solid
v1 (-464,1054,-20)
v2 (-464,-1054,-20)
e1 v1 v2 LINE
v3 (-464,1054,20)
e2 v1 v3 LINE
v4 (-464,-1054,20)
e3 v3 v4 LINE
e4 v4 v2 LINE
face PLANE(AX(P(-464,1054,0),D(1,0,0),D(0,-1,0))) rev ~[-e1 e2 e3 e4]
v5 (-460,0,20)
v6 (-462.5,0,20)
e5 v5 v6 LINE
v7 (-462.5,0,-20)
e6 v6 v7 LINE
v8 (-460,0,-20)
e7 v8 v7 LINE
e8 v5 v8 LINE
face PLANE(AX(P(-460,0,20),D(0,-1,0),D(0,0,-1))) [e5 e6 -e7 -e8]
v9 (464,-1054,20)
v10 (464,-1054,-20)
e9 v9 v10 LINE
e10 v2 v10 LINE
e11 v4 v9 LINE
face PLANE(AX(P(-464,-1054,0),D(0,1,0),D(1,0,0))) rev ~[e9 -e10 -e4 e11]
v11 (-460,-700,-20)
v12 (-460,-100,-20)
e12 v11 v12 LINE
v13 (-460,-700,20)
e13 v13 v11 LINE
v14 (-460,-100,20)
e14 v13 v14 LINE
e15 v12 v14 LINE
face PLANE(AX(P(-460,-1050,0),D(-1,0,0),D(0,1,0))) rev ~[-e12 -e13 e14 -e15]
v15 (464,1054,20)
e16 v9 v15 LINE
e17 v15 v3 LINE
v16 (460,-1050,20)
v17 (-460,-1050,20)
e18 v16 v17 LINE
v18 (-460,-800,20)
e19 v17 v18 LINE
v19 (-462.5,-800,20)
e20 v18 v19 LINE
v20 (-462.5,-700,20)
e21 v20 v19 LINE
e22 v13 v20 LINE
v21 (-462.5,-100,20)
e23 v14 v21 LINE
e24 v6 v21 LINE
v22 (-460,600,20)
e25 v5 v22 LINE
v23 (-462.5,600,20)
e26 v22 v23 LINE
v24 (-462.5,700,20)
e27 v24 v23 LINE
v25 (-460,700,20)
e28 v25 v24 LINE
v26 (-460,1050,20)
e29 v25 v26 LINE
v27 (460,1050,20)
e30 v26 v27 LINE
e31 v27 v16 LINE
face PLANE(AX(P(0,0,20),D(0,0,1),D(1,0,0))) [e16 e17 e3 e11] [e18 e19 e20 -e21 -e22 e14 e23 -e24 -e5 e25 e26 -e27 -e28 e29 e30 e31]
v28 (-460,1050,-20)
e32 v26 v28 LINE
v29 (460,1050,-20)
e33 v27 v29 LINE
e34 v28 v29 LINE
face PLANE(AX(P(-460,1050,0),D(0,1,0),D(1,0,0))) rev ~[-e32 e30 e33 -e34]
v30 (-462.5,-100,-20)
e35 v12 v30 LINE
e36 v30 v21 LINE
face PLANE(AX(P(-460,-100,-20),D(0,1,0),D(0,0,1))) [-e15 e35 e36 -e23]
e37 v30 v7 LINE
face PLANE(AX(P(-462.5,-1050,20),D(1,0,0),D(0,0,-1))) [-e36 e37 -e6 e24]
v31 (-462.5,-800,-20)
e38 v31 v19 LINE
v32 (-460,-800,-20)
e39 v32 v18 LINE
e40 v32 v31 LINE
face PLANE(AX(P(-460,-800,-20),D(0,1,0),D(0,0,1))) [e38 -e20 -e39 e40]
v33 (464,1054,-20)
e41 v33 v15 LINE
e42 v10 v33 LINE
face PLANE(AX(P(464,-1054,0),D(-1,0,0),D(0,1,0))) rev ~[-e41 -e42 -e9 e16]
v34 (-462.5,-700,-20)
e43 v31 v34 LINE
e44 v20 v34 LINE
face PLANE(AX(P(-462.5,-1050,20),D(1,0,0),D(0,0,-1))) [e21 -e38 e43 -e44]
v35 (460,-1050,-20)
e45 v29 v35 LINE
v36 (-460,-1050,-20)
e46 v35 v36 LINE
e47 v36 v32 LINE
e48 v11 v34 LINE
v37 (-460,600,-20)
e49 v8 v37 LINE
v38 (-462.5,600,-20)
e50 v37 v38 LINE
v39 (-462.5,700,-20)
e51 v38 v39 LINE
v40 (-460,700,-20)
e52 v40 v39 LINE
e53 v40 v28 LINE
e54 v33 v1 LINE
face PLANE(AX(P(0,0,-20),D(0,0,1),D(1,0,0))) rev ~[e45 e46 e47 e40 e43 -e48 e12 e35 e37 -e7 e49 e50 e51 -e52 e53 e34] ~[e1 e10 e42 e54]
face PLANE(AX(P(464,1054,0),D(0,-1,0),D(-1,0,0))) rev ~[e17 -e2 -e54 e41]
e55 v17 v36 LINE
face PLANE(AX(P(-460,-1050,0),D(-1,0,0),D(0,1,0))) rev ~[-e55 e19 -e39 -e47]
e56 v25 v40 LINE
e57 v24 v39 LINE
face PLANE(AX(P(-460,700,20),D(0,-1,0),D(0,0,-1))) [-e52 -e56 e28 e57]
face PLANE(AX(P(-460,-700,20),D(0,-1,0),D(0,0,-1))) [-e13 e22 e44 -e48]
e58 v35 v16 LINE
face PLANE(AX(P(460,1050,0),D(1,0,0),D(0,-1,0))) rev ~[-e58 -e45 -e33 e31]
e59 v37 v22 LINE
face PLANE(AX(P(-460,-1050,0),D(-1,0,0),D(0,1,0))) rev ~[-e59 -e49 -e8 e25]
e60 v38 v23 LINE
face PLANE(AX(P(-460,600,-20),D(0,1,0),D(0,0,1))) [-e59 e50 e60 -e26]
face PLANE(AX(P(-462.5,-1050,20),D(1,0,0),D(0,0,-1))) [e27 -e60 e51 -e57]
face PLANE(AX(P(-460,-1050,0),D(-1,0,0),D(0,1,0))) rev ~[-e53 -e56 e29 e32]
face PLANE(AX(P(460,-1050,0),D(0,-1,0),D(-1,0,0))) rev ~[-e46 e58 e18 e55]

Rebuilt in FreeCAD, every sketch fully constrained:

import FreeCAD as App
import Part
import Sketcher
Q = App.Units.Quantity

doc = App.newDocument("Part")
params = doc.addObject("Spreadsheet::Sheet", "Params")
for row, (alias, value) in enumerate([
    ("sketch1_width", "920 mm"),
    ("sketch1_height", "2100 mm"),
    ("pad1_length", "40 mm"),
    ("sketch2_width", "100 mm"),
    ("sketch2_height", "40 mm"),
    ("pocket1_length", "2.5 mm"),
], start=1):
    params.set(f"A{row}", alias)
    params.set(f"B{row}", "=" + value)
    params.setAlias(f"B{row}", alias)

body = doc.addObject("PartDesign::Body", "Body")

sketch1 = body.newObject("Sketcher::SketchObject", "Sketch")
sketch1.AttachmentSupport = (doc.getObject("XY_Plane"), [""])
sketch1.MapMode = "FlatFace"
sketch1.addGeometry(Part.LineSegment(App.Vector(464, -1054, 0), App.Vector(464, 1054, 0)), False)
sketch1.addGeometry(Part.LineSegment(App.Vector(464, 1054, 0), App.Vector(-464, 1054, 0)), False)
sketch1.addGeometry(Part.LineSegment(App.Vector(-464, 1054, 0), App.Vector(-464, -1054, 0)), False)
sketch1.addGeometry(Part.LineSegment(App.Vector(-464, -1054, 0), App.Vector(464, -1054, 0)), False)
sketch1.addGeometry(Part.LineSegment(App.Vector(460, 1050, 0), App.Vector(460, -1050, 0)), False)
sketch1.addGeometry(Part.LineSegment(App.Vector(460, -1050, 0), App.Vector(-460, -1050, 0)), False)
sketch1.addGeometry(Part.LineSegment(App.Vector(-460, -1050, 0), App.Vector(-460, 1050, 0)), False)
sketch1.addGeometry(Part.LineSegment(App.Vector(-460, 1050, 0), App.Vector(460, 1050, 0)), False)
sketch1.addConstraint(Sketcher.Constraint("Coincident", 0, 2, 1, 1))
sketch1.addConstraint(Sketcher.Constraint("Coincident", 1, 2, 2, 1))
sketch1.addConstraint(Sketcher.Constraint("Coincident", 2, 2, 3, 1))
sketch1.addConstraint(Sketcher.Constraint("Coincident", 3, 2, 0, 1))
sketch1.addConstraint(Sketcher.Constraint("Coincident", 4, 2, 5, 1))
sketch1.addConstraint(Sketcher.Constraint("Coincident", 5, 2, 6, 1))
sketch1.addConstraint(Sketcher.Constraint("Coincident", 6, 2, 7, 1))
sketch1.addConstraint(Sketcher.Constraint("Coincident", 7, 2, 4, 1))
sketch1.addConstraint(Sketcher.Constraint("Vertical", 0))
sketch1.addConstraint(Sketcher.Constraint("Horizontal", 1))
sketch1.addConstraint(Sketcher.Constraint("Vertical", 2))
sketch1.addConstraint(Sketcher.Constraint("Horizontal", 3))
sketch1.addConstraint(Sketcher.Constraint("Vertical", 4))
sketch1.addConstraint(Sketcher.Constraint("Horizontal", 5))
sketch1.addConstraint(Sketcher.Constraint("Vertical", 6))
sketch1.addConstraint(Sketcher.Constraint("Horizontal", 7))
sketch1.addConstraint(Sketcher.Constraint("Symmetric", 0, 2, 2, 2, -1, 1))
sketch1.addConstraint(Sketcher.Constraint("Symmetric", 4, 2, 6, 2, -1, 1))
sketch1.addConstraint(Sketcher.Constraint("DistanceX", 5, 2, 5, 1, Q("920 mm")))
sketch1.addConstraint(Sketcher.Constraint("DistanceY", 4, 2, 4, 1, Q("2100 mm")))
sketch1.addConstraint(Sketcher.Constraint("DistanceX", 4, 2, 3, 2, Q("4 mm")))
sketch1.addConstraint(Sketcher.Constraint("DistanceY", 3, 2, 4, 2, Q("4 mm")))
sketch1.setExpression("Constraints[18]", "Params.sketch1_width")
sketch1.setExpression("Constraints[19]", "Params.sketch1_height")
pad1 = body.newObject("PartDesign::Pad", "Pad")
pad1.Profile = sketch1
pad1.setExpression("Length", "Params.pad1_length")
pad1.Midplane = True

sketch2 = body.newObject("Sketcher::SketchObject", "Sketch001")
sketch2.AttachmentSupport = (doc.getObject("YZ_Plane"), [""])
sketch2.MapMode = "FlatFace"
sketch2.AttachmentOffset = App.Placement(App.Vector(0, 0, -460), App.Rotation())
sketch2.addGeometry(Part.LineSegment(App.Vector(700, -20, 0), App.Vector(700, 20, 0)), False)
sketch2.addGeometry(Part.LineSegment(App.Vector(700, 20, 0), App.Vector(600, 20, 0)), False)
sketch2.addGeometry(Part.LineSegment(App.Vector(600, 20, 0), App.Vector(600, -20, 0)), False)
sketch2.addGeometry(Part.LineSegment(App.Vector(600, -20, 0), App.Vector(700, -20, 0)), False)
sketch2.addGeometry(Part.LineSegment(App.Vector(0, -20, 0), App.Vector(0, 20, 0)), False)
sketch2.addGeometry(Part.LineSegment(App.Vector(0, 20, 0), App.Vector(-100, 20, 0)), False)
sketch2.addGeometry(Part.LineSegment(App.Vector(-100, 20, 0), App.Vector(-100, -20, 0)), False)
sketch2.addGeometry(Part.LineSegment(App.Vector(-100, -20, 0), App.Vector(0, -20, 0)), False)
sketch2.addGeometry(Part.LineSegment(App.Vector(-700, -20, 0), App.Vector(-700, 20, 0)), False)
sketch2.addGeometry(Part.LineSegment(App.Vector(-700, 20, 0), App.Vector(-800, 20, 0)), False)
sketch2.addGeometry(Part.LineSegment(App.Vector(-800, 20, 0), App.Vector(-800, -20, 0)), False)
sketch2.addGeometry(Part.LineSegment(App.Vector(-800, -20, 0), App.Vector(-700, -20, 0)), False)
sketch2.addConstraint(Sketcher.Constraint("Coincident", 0, 2, 1, 1))
sketch2.addConstraint(Sketcher.Constraint("Coincident", 1, 2, 2, 1))
sketch2.addConstraint(Sketcher.Constraint("Coincident", 2, 2, 3, 1))
sketch2.addConstraint(Sketcher.Constraint("Coincident", 3, 2, 0, 1))
sketch2.addConstraint(Sketcher.Constraint("Coincident", 4, 2, 5, 1))
sketch2.addConstraint(Sketcher.Constraint("Coincident", 5, 2, 6, 1))
sketch2.addConstraint(Sketcher.Constraint("Coincident", 6, 2, 7, 1))
sketch2.addConstraint(Sketcher.Constraint("Coincident", 7, 2, 4, 1))
sketch2.addConstraint(Sketcher.Constraint("Coincident", 8, 2, 9, 1))
sketch2.addConstraint(Sketcher.Constraint("Coincident", 9, 2, 10, 1))
sketch2.addConstraint(Sketcher.Constraint("Coincident", 10, 2, 11, 1))
sketch2.addConstraint(Sketcher.Constraint("Coincident", 11, 2, 8, 1))
sketch2.addConstraint(Sketcher.Constraint("Vertical", 0))
sketch2.addConstraint(Sketcher.Constraint("Horizontal", 1))
sketch2.addConstraint(Sketcher.Constraint("Vertical", 2))
sketch2.addConstraint(Sketcher.Constraint("Horizontal", 3))
sketch2.addConstraint(Sketcher.Constraint("Vertical", 4))
sketch2.addConstraint(Sketcher.Constraint("Horizontal", 5))
sketch2.addConstraint(Sketcher.Constraint("Vertical", 6))
sketch2.addConstraint(Sketcher.Constraint("Horizontal", 7))
sketch2.addConstraint(Sketcher.Constraint("Vertical", 8))
sketch2.addConstraint(Sketcher.Constraint("Horizontal", 9))
sketch2.addConstraint(Sketcher.Constraint("Vertical", 10))
sketch2.addConstraint(Sketcher.Constraint("Horizontal", 11))
sketch2.addConstraint(Sketcher.Constraint("Symmetric", 4, 2, 7, 2, -1, 1))
sketch2.addConstraint(Sketcher.Constraint("Symmetric", 3, 2, 8, 2, -1, 1))
sketch2.addConstraint(Sketcher.Constraint("Horizontal", 1, 2, 4, 2))
sketch2.addConstraint(Sketcher.Constraint("Horizontal", 3, 2, 6, 2))
sketch2.addConstraint(Sketcher.Constraint("Horizontal", 7, 2, 10, 2))
sketch2.addConstraint(Sketcher.Constraint("Equal", 3, 5))
sketch2.addConstraint(Sketcher.Constraint("Equal", 7, 9))
sketch2.addConstraint(Sketcher.Constraint("DistanceX", 1, 2, 1, 1, Q("100 mm")))
sketch2.addConstraint(Sketcher.Constraint("DistanceX", -1, 1, 0, 2, Q("700 mm")))
sketch2.addConstraint(Sketcher.Constraint("DistanceY", 0, 1, 0, 2, Q("40 mm")))
sketch2.setExpression("Constraints[31]", "Params.sketch2_width")
sketch2.setExpression("Constraints[33]", "Params.sketch2_height")
pocket1 = body.newObject("PartDesign::Pocket", "Pocket")
pocket1.Profile = sketch2
pocket1.setExpression("Length", "Params.pocket1_length")

doc.recompute()
